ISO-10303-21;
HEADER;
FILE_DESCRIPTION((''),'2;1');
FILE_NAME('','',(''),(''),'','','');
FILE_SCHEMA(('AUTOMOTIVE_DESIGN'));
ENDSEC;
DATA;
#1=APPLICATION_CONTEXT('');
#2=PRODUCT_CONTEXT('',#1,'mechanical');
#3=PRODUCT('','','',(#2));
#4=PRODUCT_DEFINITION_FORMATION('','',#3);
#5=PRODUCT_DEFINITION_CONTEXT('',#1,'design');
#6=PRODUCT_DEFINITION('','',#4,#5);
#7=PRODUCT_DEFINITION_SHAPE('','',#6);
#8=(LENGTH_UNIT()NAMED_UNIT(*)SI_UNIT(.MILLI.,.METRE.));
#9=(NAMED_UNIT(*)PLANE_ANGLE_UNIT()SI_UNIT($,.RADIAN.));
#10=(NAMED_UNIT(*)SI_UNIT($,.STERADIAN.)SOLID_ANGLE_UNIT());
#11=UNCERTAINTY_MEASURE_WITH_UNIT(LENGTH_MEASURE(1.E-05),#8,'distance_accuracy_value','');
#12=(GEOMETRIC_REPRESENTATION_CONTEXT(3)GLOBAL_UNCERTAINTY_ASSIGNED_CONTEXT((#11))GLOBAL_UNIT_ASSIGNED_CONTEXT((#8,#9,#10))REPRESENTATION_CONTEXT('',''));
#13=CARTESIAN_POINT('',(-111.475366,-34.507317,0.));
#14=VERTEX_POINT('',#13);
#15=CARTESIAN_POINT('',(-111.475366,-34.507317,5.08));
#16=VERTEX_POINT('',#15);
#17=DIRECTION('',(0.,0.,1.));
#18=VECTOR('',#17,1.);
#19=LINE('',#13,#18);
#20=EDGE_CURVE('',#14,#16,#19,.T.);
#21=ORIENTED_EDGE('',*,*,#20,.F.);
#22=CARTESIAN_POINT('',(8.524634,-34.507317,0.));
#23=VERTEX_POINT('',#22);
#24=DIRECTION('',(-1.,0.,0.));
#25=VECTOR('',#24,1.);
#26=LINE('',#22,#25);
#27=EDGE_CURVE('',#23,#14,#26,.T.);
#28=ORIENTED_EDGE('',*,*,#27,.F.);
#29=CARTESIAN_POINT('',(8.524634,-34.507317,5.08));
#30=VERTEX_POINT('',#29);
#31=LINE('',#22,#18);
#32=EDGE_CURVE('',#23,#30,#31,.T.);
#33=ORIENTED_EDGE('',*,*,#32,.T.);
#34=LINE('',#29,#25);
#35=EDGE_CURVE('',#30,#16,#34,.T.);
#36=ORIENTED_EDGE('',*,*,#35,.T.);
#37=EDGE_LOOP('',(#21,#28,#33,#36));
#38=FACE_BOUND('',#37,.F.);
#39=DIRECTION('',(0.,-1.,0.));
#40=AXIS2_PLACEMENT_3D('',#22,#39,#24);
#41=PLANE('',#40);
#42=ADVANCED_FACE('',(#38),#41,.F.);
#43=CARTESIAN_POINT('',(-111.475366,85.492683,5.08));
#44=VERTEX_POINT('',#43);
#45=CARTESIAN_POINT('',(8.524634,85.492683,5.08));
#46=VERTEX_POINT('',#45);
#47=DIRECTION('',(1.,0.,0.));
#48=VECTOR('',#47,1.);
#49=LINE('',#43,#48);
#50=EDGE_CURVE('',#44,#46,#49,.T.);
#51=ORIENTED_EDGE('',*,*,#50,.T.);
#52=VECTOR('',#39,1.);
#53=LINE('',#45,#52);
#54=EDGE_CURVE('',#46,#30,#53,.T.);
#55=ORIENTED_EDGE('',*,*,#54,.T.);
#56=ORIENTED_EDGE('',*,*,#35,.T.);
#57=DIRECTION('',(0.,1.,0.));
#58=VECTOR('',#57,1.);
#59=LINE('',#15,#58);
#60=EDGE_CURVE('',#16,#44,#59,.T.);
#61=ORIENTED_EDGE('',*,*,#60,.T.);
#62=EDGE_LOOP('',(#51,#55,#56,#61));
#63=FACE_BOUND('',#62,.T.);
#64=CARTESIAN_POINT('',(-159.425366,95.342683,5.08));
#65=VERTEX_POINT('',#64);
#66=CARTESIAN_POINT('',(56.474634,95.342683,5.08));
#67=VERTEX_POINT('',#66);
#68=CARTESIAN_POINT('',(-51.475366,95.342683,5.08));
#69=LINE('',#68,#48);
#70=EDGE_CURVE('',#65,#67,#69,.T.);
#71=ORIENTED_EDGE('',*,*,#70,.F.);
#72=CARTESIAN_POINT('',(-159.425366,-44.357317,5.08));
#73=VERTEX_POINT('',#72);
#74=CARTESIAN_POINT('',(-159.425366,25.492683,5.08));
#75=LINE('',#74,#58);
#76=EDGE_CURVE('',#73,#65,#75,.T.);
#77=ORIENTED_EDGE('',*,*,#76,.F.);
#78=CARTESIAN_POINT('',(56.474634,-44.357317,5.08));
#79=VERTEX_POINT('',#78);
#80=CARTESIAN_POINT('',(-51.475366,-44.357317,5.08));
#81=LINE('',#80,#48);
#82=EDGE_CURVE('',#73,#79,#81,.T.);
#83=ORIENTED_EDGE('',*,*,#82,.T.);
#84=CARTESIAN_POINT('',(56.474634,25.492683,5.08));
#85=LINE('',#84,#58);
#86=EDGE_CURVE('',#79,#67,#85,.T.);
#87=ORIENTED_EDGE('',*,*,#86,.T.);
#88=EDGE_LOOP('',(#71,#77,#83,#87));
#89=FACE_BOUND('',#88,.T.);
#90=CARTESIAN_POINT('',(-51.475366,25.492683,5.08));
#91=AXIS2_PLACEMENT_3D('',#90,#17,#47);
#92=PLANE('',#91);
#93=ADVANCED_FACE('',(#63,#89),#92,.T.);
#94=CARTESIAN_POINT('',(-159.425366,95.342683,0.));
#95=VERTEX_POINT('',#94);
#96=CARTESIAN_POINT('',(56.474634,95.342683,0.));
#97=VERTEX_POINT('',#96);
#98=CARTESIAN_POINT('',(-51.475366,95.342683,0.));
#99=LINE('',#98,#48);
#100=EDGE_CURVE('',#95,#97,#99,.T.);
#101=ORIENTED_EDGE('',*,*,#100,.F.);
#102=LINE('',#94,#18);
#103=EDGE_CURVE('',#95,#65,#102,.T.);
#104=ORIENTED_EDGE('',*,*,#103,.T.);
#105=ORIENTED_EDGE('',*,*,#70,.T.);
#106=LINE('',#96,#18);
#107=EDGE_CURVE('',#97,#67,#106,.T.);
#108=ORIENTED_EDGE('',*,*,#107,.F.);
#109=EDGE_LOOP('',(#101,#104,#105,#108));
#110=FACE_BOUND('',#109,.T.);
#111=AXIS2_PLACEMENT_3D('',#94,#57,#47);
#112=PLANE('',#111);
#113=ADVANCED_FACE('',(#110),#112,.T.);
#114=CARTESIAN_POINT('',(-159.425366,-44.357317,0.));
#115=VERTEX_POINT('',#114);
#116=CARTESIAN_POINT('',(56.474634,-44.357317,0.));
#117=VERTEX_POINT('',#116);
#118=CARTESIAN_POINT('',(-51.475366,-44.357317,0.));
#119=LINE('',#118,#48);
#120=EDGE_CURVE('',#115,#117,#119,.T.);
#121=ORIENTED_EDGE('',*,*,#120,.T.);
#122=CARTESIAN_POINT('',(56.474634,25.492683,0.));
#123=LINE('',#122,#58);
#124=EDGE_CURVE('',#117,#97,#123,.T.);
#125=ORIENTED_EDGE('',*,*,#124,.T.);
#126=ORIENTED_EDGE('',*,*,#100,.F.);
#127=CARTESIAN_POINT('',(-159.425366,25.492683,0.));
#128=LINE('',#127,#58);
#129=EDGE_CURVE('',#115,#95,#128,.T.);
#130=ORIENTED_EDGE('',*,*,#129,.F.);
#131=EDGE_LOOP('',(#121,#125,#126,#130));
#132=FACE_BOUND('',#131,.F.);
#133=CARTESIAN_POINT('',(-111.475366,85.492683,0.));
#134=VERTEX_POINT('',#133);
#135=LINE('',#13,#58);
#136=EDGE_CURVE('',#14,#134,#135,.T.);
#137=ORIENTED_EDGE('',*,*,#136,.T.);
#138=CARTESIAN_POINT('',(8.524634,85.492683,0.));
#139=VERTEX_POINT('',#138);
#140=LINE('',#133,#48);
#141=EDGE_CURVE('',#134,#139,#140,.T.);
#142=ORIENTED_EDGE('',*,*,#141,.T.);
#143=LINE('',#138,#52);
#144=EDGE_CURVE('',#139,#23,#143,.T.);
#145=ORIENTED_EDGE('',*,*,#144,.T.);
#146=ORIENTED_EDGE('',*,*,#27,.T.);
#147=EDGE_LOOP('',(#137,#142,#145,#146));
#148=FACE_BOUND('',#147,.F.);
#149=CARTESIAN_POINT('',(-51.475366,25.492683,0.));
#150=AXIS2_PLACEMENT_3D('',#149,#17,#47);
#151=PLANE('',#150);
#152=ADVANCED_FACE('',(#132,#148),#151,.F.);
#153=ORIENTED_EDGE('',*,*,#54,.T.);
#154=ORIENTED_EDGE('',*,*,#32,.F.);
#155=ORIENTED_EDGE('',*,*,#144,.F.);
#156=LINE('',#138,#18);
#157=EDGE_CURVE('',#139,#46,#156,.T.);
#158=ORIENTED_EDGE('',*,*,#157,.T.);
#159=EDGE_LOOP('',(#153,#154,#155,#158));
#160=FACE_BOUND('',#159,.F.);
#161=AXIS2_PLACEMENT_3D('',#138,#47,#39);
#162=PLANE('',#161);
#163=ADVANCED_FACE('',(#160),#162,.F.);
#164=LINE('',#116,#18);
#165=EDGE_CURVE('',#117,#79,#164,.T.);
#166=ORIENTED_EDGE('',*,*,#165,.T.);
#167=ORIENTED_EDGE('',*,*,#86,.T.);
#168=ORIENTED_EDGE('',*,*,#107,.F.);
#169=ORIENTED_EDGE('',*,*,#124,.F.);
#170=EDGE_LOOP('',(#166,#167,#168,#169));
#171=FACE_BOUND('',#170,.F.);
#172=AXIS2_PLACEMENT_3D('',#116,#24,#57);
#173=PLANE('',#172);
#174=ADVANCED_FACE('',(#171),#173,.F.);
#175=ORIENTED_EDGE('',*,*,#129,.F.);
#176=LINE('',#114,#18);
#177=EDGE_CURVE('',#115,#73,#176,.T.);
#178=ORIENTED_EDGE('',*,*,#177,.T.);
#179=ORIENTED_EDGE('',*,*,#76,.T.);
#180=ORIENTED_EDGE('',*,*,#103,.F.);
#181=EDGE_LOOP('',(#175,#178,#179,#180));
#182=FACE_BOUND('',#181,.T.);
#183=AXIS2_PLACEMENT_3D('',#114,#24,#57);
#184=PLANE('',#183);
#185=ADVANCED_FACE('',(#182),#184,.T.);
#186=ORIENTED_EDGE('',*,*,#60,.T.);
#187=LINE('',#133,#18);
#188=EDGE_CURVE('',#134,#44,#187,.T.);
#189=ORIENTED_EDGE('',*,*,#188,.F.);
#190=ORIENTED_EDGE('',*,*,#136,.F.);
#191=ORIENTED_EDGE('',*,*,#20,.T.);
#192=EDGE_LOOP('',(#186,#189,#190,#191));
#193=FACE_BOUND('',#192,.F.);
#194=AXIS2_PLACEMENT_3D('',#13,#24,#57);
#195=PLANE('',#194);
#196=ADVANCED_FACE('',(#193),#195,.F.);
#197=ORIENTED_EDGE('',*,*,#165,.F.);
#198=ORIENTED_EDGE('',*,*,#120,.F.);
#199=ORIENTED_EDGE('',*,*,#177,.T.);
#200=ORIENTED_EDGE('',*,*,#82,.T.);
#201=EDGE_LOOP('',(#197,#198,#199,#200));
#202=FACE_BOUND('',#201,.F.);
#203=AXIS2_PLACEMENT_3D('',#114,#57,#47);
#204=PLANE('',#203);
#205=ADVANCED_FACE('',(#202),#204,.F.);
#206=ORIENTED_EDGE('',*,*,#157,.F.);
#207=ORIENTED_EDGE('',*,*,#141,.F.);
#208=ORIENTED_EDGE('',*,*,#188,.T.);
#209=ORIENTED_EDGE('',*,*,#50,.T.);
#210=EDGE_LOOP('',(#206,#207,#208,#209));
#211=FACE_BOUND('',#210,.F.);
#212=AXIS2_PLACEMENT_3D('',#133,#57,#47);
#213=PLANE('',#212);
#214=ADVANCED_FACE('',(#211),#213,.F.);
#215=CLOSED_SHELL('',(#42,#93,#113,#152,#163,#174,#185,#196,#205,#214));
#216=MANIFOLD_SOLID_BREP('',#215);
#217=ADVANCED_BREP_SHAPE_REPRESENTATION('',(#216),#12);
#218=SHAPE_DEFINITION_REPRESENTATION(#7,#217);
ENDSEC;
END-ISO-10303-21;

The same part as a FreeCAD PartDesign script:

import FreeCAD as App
import Part
import Sketcher
from FreeCAD import Vector
Q = App.Units.Quantity

doc = App.newDocument("Part")
body = doc.addObject("PartDesign::Body", "Body")

# Sketch on XY plane
sketch1 = doc.addObject("Sketcher::SketchObject", "Sketch")
body.addObject(sketch1)
sketch1.AttachmentSupport = (doc.XY_Plane, [""])
sketch1.MapMode = "FlatFace"
sketch1.addGeometry([
    Part.LineSegment(Vector(-159, 95, 0), Vector(-159, -44, 0)),  # 0
    Part.LineSegment(Vector(-159, -44, 0), Vector(56, -44, 0)),  # 1
    Part.LineSegment(Vector(56, -44, 0), Vector(56, 95, 0)),  # 2
    Part.LineSegment(Vector(56, 95, 0), Vector(-159, 95, 0)),  # 3
    Part.LineSegment(Vector(9, -35, 0), Vector(-111, -35, 0)),  # 4
    Part.LineSegment(Vector(-111, -35, 0), Vector(-111, 85, 0)),  # 5
    Part.LineSegment(Vector(-111, 85, 0), Vector(9, 85, 0)),  # 6
    Part.LineSegment(Vector(9, 85, 0), Vector(9, -35, 0)),  # 7
], False)
sketch1.addConstraint([
    Sketcher.Constraint("Coincident", 0, 2, 1, 1),
    Sketcher.Constraint("Coincident", 1, 2, 2, 1),
    Sketcher.Constraint("Coincident", 2, 2, 3, 1),
    Sketcher.Constraint("Coincident", 3, 2, 0, 1),
    Sketcher.Constraint("Coincident", 4, 2, 5, 1),
    Sketcher.Constraint("Coincident", 5, 2, 6, 1),
    Sketcher.Constraint("Coincident", 6, 2, 7, 1),
    Sketcher.Constraint("Coincident", 7, 2, 4, 1),
    Sketcher.Constraint("Vertical", 0),
    Sketcher.Constraint("Horizontal", 1),
    Sketcher.Constraint("Vertical", 2),
    Sketcher.Constraint("Horizontal", 3),
    Sketcher.Constraint("Horizontal", 4),
    Sketcher.Constraint("Vertical", 5),
    Sketcher.Constraint("Horizontal", 6),
    Sketcher.Constraint("Vertical", 7),
    Sketcher.Constraint("Equal", 6, 5),
    Sketcher.Constraint("DistanceX", 1, 1, 1, 2, Q("8.5 in")),
    Sketcher.Constraint("DistanceY", 0, 2, 0, 1, Q("5.5 in")),
    Sketcher.Constraint("DistanceX", 4, 2, 4, 1, Q("120 mm")),
    Sketcher.Constraint("DistanceX", 0, 2, 4, 2, Q("47.95 mm")),
    Sketcher.Constraint("DistanceY", 0, 2, 4, 2, Q("9.85 mm")),
    Sketcher.Constraint("DistanceX", 0, 2, -1, 1, Q("159.425366 mm")),
    Sketcher.Constraint("DistanceY", 0, 2, -1, 1, Q("44.357317 mm")),
])
pad1 = doc.addObject("PartDesign::Pad", "Pad")
body.addObject(pad1)
pad1.Profile = sketch1
pad1.Length = Q("0.2 in")

doc.recompute()
